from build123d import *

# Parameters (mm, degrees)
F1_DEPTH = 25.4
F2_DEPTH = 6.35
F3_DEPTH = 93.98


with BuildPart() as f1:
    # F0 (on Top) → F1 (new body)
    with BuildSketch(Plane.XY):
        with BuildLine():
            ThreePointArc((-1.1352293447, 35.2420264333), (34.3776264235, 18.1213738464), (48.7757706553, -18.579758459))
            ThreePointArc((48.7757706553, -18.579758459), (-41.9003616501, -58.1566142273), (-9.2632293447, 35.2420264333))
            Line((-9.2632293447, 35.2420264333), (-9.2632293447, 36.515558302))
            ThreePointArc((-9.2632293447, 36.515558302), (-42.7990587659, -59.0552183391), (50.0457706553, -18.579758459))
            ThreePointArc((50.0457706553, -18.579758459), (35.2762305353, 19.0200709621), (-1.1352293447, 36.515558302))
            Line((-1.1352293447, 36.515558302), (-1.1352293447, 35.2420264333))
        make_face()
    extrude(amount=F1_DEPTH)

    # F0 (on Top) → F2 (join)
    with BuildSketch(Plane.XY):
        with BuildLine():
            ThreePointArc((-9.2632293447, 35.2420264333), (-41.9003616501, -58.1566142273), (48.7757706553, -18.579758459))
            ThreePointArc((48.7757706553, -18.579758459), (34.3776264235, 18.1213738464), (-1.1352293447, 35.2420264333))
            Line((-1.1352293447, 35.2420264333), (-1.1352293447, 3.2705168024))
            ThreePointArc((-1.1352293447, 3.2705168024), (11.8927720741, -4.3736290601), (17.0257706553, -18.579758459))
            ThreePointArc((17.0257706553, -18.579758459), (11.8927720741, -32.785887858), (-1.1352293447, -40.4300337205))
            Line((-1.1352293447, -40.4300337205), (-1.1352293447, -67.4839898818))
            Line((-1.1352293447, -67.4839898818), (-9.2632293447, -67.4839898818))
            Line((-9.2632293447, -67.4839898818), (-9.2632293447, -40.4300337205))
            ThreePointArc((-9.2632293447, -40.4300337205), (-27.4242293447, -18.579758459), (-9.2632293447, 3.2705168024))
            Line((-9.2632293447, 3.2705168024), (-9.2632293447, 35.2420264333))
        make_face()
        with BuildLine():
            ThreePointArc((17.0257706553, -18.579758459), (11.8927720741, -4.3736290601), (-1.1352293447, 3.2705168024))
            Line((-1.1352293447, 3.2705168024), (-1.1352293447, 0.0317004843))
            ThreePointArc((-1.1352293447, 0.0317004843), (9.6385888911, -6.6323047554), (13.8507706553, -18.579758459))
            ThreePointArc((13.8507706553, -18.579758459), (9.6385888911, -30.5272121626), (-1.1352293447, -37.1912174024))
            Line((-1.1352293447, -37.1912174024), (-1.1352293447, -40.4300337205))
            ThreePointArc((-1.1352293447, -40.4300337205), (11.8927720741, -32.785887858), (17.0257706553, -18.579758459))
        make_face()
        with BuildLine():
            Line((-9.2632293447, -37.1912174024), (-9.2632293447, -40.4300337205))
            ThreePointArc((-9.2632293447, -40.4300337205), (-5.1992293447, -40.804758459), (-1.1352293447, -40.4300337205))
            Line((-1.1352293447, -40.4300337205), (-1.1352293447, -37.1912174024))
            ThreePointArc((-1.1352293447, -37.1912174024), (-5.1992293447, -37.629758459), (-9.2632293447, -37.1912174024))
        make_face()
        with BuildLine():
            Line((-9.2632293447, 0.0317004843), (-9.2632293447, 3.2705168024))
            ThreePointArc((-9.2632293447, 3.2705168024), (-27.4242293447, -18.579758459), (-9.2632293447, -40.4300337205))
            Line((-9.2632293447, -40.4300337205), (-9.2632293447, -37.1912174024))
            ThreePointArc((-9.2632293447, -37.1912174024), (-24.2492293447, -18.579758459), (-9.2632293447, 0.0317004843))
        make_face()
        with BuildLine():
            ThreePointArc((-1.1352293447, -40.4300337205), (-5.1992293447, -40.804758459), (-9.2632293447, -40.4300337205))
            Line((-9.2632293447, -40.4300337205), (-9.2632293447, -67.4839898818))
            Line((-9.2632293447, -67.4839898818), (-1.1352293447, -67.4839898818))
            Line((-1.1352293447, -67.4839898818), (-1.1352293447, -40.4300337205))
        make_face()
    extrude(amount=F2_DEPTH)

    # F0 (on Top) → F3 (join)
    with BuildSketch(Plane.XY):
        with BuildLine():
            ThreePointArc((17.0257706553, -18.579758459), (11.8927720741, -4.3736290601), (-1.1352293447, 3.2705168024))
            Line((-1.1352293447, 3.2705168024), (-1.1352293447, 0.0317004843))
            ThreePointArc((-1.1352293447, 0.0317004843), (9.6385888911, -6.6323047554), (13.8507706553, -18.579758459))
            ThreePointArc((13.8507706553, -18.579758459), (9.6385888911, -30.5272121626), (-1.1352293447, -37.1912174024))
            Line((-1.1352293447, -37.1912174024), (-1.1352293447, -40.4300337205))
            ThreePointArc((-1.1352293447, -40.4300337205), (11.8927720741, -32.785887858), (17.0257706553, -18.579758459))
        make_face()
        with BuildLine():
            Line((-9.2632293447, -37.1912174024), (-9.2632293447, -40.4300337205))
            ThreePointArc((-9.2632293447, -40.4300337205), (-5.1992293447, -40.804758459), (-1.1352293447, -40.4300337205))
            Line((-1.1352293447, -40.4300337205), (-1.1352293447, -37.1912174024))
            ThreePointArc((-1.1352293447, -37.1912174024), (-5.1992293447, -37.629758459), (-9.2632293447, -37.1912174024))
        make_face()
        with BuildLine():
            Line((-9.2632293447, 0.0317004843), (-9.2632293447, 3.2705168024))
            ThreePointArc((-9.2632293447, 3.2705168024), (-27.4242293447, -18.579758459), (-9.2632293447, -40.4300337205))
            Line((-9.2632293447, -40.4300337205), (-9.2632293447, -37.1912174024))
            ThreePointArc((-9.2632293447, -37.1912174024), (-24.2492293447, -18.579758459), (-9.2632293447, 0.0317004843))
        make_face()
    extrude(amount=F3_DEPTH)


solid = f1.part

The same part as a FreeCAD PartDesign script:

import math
import FreeCAD as App
import Part
import Sketcher
from FreeCAD import Vector
Q = App.Units.Quantity

doc = App.newDocument("Part")
body = doc.addObject("PartDesign::Body", "Body")

sketch1 = doc.addObject("Sketcher::SketchObject", "Sketch")
body.addObject(sketch1)
sketch1.AttachmentSupport = (doc.XY_Plane, [""])
sketch1.MapMode = "FlatFace"
sketch1.addGeometry([
    Part.ArcOfCircle(Part.Circle(Vector(-5.199229, -18.579758, 0), Vector(0, 0, 1), 53.975), math.radians(94.318122), math.radians(445.681878)),
    Part.LineSegment(Vector(-9.263229, 35.242026, 0), Vector(-9.263229, 36.515558, 0)),
    Part.ArcOfCircle(Part.Circle(Vector(-5.199229, -18.579758, 0), Vector(0, 0, 1), 55.245), math.radians(94.218673), math.radians(445.781327)),
    Part.LineSegment(Vector(-1.135229, 36.515558, 0), Vector(-1.135229, 35.242026, 0)),
], False)
sketch1.addConstraint([
    Sketcher.Constraint("Coincident", 0, 1, 1, 1),
    Sketcher.Constraint("Coincident", 1, 2, 2, 1),
    Sketcher.Constraint("Coincident", 2, 2, 3, 1),
    Sketcher.Constraint("Coincident", 3, 2, 0, 2),
    Sketcher.Constraint("Vertical", 1),
    Sketcher.Constraint("Vertical", 3),
    Sketcher.Constraint("Coincident", 2, 3, 0, 3),
    Sketcher.Constraint("Horizontal", 1, 2, 2, 2),
    Sketcher.Constraint("Radius", 0, Q("2.125 in")),
    Sketcher.Constraint("Radius", 2, Q("2.175 in")),
    Sketcher.Constraint("DistanceX", 0, 1, 0, 3, Q("0.16 in")),
    Sketcher.Constraint("DistanceX", 0, 3, -1, 1, Q("5.199229 mm")),
    Sketcher.Constraint("DistanceY", 0, 3, -1, 1, Q("18.579758 mm")),
])
pad1 = doc.addObject("PartDesign::Pad", "Pad")
body.addObject(pad1)
pad1.Profile = sketch1
pad1.Length = Q("1 in")

sketch2 = doc.addObject("Sketcher::SketchObject", "Sketch001")
body.addObject(sketch2)
sketch2.AttachmentSupport = (doc.XY_Plane, [""])
sketch2.MapMode = "FlatFace"
sketch2.addGeometry([
    Part.ArcOfCircle(Part.Circle(Vector(-5.199229, -18.579758, 0), Vector(0, 0, 1), 19.05), math.radians(-102.317766), math.radians(-77.682234)),
    Part.ArcOfCircle(Part.Circle(Vector(-5.199229, -18.579758, 0), Vector(0, 0, 1), 19.05), math.radians(102.317766), math.radians(257.682234)),
    Part.LineSegment(Vector(-9.263229, 0.0317, 0), Vector(-9.263229, 35.242026, 0)),
    Part.ArcOfCircle(Part.Circle(Vector(-5.199229, -18.579758, 0), Vector(0, 0, 1), 53.975), math.radians(94.318122), math.radians(445.681878)),
    Part.LineSegment(Vector(-1.135229, 35.242026, 0), Vector(-1.135229, 0.0317, 0)),
    Part.ArcOfCircle(Part.Circle(Vector(-5.199229, -18.579758, 0), Vector(0, 0, 1), 19.05), math.radians(0), math.radians(77.682234)),
    Part.ArcOfCircle(Part.Circle(Vector(-5.199229, -18.579758, 0), Vector(0, 0, 1), 19.05), math.radians(-77.682234), math.radians(0)),
], False)
sketch2.addConstraint([
    Sketcher.Constraint("Tangent", 0, 1, 1, 2),
    Sketcher.Constraint("Coincident", 1, 1, 2, 1),
    Sketcher.Constraint("Coincident", 2, 2, 3, 1),
    Sketcher.Constraint("Coincident", 3, 2, 4, 1),
    Sketcher.Constraint("Coincident", 4, 2, 5, 2),
    Sketcher.Constraint("Tangent", 5, 1, 6, 2),
    Sketcher.Constraint("Tangent", 6, 1, 0, 2),
    Sketcher.Constraint("Vertical", 2),
    Sketcher.Constraint("Vertical", 4),
    Sketcher.Constraint("Coincident", 3, 3, 0, 3),
    Sketcher.Constraint("Coincident", 5, 3, 0, 3),
    Sketcher.Constraint("Equal", 0, 1),
    Sketcher.Constraint("Horizontal", 2, 2, 3, 2),
    Sketcher.Constraint("Horizontal", 6, 3, 5, 1),
    Sketcher.Constraint("Horizontal", 0, 1, 6, 1),
    Sketcher.Constraint("Vertical", 0, 1, 1, 1),
    Sketcher.Constraint("Radius", 0, Q("0.75 in")),
    Sketcher.Constraint("Radius", 3, Q("2.125 in")),
    Sketcher.Constraint("DistanceX", 0, 1, 1, 3, Q("0.16 in")),
    Sketcher.Constraint("DistanceY", -1, 1, 1, 1, Q("0.0317 mm")),
    Sketcher.Constraint("DistanceX", 0, 3, -1, 1, Q("5.199229 mm")),
])
pad2 = doc.addObject("PartDesign::Pad", "Pad001")
body.addObject(pad2)
pad2.Profile = sketch2
pad2.Length = Q("0.25 in")

sketch3 = doc.addObject("Sketcher::SketchObject", "Sketch002")
body.addObject(sketch3)
sketch3.AttachmentSupport = (doc.XY_Plane, [""])
sketch3.MapMode = "FlatFace"
sketch3.addGeometry([
    Part.ArcOfCircle(Part.Circle(Vector(-5.199229, -18.579758, 0), Vector(0, 0, 1), 22.225), math.radians(0), math.radians(79.463775)),
    Part.LineSegment(Vector(-1.135229, 3.270517, 0), Vector(-1.135229, 0.0317, 0)),
    Part.ArcOfCircle(Part.Circle(Vector(-5.199229, -18.579758, 0), Vector(0, 0, 1), 19.05), math.radians(0), math.radians(77.682234)),
    Part.ArcOfCircle(Part.Circle(Vector(-5.199229, -18.579758, 0), Vector(0, 0, 1), 19.05), math.radians(-77.682234), math.radians(0)),
    Part.ArcOfCircle(Part.Circle(Vector(-5.199229, -18.579758, 0), Vector(0, 0, 1), 19.05), math.radians(-102.317766), math.radians(-77.682234)),
    Part.ArcOfCircle(Part.Circle(Vector(-5.199229, -18.579758, 0), Vector(0, 0, 1), 19.05), math.radians(102.317766), math.radians(257.682234)),
    Part.LineSegment(Vector(-9.263229, 0.0317, 0), Vector(-9.263229, 3.270517, 0)),
    Part.ArcOfCircle(Part.Circle(Vector(-5.199229, -18.579758, 0), Vector(0, 0, 1), 22.225), math.radians(100.536225), math.radians(259.463775)),
    Part.ArcOfCircle(Part.Circle(Vector(-5.199229, -18.579758, 0), Vector(0, 0, 1), 22.225), math.radians(-100.536225), math.radians(-79.463775)),
    Part.ArcOfCircle(Part.Circle(Vector(-5.199229, -18.579758, 0), Vector(0, 0, 1), 22.225), math.radians(-79.463775), math.radians(0)),
], False)
sketch3.addConstraint([
    Sketcher.Constraint("Coincident", 0, 2, 1, 1),
    Sketcher.Constraint("Coincident", 1, 2, 2, 2),
    Sketcher.Constraint("Tangent", 2, 1, 3, 2),
    Sketcher.Constraint("Tangent", 3, 1, 4, 2),
    Sketcher.Constraint("Tangent", 4, 1, 5, 2),
    Sketcher.Constraint("Coincident", 5, 1, 6, 1),
    Sketcher.Constraint("Coincident", 6, 2, 7, 1),
    Sketcher.Constraint("Tangent", 7, 2, 8, 1),
    Sketcher.Constraint("Tangent", 8, 2, 9, 1),
    Sketcher.Constraint("Tangent", 9, 2, 0, 1),
    Sketcher.Constraint("Vertical", 1),
    Sketcher.Constraint("Vertical", 6),
    Sketcher.Constraint("Coincident", 2, 3, 0, 3),
    Sketcher.Constraint("Coincident", 4, 3, 0, 3),
    Sketcher.Constraint("Coincident", 7, 3, 0, 3),
    Sketcher.Constraint("Equal", 4, 5),
    Sketcher.Constraint("Equal", 0, 7),
    Sketcher.Constraint("Horizontal", 9, 3, 2, 1),
    Sketcher.Constraint("Horizontal", 3, 1, 4, 1),
    Sketcher.Constraint("Horizontal", 1, 2, 5, 1),
    Sketcher.Constraint("Horizontal", 7, 2, 8, 2),
    Sketcher.Constraint("Horizontal", 2, 1, 9, 2),
    Sketcher.Constraint("Vertical", 1, 2, 3, 1),
    Sketcher.Constraint("Vertical", 6, 2, 7, 2),
    Sketcher.Constraint("Radius", 2, Q("0.75 in")),
    Sketcher.Constraint("Radius", 0, Q("0.875 in")),
    Sketcher.Constraint("DistanceX", 8, 3, 0, 2, Q("0.16 in")),
    Sketcher.Constraint("DistanceY", -1, 1, 1, 2, Q("0.0317 mm")),
    Sketcher.Constraint("DistanceX", 0, 3, -1, 1, Q("5.199229 mm")),
])
pad3 = doc.addObject("PartDesign::Pad", "Pad002")
body.addObject(pad3)
pad3.Profile = sketch3
pad3.Length = Q("3.7 in")

doc.recompute()
